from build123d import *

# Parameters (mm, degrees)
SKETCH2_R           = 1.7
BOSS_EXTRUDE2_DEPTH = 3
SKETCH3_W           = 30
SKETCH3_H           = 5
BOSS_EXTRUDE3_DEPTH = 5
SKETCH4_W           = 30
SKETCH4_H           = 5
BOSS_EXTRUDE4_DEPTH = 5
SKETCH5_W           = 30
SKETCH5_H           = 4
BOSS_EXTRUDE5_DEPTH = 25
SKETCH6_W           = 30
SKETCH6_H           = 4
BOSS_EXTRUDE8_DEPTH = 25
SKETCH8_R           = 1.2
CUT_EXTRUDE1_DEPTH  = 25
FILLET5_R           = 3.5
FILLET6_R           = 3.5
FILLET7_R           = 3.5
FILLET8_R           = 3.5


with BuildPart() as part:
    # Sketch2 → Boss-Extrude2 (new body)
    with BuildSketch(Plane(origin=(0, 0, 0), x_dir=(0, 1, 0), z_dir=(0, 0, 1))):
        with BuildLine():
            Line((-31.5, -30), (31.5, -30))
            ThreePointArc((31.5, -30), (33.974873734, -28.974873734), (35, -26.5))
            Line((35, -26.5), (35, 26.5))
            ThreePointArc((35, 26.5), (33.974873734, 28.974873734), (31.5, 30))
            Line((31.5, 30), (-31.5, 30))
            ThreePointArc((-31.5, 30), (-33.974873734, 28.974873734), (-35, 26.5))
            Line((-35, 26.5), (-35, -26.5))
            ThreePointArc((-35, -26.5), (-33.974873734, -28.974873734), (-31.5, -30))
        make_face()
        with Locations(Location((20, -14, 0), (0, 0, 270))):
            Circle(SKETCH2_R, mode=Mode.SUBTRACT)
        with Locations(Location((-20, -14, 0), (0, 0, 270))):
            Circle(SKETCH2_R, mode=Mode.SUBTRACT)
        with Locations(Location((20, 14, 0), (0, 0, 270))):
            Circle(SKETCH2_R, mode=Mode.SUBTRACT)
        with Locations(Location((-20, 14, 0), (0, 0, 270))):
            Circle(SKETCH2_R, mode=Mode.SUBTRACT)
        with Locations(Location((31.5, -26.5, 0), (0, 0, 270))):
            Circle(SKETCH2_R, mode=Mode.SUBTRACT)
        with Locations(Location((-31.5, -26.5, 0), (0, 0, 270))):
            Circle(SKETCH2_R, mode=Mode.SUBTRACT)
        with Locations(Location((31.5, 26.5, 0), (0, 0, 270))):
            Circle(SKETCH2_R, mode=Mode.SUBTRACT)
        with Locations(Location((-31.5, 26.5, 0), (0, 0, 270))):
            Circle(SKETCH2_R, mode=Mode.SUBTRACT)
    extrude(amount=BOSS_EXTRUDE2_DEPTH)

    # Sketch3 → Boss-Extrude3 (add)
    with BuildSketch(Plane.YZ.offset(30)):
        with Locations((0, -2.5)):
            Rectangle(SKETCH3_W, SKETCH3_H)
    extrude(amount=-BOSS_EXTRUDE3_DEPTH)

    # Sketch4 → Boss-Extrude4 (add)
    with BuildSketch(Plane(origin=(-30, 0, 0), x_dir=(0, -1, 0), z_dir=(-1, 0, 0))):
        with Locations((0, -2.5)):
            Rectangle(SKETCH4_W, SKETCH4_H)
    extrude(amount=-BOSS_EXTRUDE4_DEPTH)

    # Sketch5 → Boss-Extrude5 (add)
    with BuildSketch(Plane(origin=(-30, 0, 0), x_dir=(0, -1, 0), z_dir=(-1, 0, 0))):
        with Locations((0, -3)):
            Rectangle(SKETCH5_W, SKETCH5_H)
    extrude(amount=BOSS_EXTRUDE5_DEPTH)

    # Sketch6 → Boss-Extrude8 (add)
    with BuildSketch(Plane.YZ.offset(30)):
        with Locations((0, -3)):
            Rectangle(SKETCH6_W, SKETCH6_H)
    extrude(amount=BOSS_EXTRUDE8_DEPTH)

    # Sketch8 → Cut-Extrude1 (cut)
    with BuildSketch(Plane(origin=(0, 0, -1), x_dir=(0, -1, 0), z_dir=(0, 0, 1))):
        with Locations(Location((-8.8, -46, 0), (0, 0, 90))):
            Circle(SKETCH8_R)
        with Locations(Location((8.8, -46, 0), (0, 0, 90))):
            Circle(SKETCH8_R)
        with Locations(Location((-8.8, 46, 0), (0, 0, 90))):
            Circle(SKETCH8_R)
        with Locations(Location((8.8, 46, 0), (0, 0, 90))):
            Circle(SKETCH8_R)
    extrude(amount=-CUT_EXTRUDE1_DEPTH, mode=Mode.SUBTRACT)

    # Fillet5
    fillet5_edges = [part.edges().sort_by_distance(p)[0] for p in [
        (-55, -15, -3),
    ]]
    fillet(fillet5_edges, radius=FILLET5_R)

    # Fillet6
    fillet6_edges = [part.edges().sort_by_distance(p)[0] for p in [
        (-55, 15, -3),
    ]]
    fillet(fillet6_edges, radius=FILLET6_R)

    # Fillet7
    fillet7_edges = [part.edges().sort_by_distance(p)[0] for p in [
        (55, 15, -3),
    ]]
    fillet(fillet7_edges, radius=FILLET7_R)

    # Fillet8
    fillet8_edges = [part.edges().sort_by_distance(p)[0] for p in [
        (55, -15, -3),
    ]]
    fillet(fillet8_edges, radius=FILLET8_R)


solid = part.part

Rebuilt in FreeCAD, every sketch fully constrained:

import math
import FreeCAD as App
import Part
import Sketcher
from FreeCAD import Vector
Q = App.Units.Quantity


def edges_at(feature, points):
    """Names of the edges that pass closest to the given points."""
    edges = feature.Shape.Edges
    near = lambda p: min(range(len(edges)), key=lambda i: edges[i].distToShape(Part.Vertex(*p))[0])
    return sorted({f"Edge{near(p) + 1}" for p in points})

doc = App.newDocument("Part")
body = doc.addObject("PartDesign::Body", "Body")

sketch1 = doc.addObject("Sketcher::SketchObject", "Sketch")
body.addObject(sketch1)
sketch1.AttachmentSupport = (doc.XY_Plane, [""])
sketch1.MapMode = "FlatFace"
sketch1.addGeometry([
    Part.LineSegment(Vector(30, -31.5, 0), Vector(30, 31.5, 0)),
    Part.ArcOfCircle(Part.Circle(Vector(26.5, 31.5, 0), Vector(0, 0, 1), 3.5), math.radians(0), math.radians(90)),
    Part.LineSegment(Vector(26.5, 35, 0), Vector(-26.5, 35, 0)),
    Part.ArcOfCircle(Part.Circle(Vector(-26.5, 31.5, 0), Vector(0, 0, 1), 3.5), math.radians(90), math.radians(180)),
    Part.LineSegment(Vector(-30, 31.5, 0), Vector(-30, -31.5, 0)),
    Part.ArcOfCircle(Part.Circle(Vector(-26.5, -31.5, 0), Vector(0, 0, 1), 3.5), math.radians(-180), math.radians(-90)),
    Part.LineSegment(Vector(-26.5, -35, 0), Vector(26.5, -35, 0)),
    Part.ArcOfCircle(Part.Circle(Vector(26.5, -31.5, 0), Vector(0, 0, 1), 3.5), math.radians(-90), math.radians(0)),
    Part.Circle(Vector(26.5, -31.5, 0), Vector(0, 0, 1), 1.7),
    Part.Circle(Vector(14, -20, 0), Vector(0, 0, 1), 1.7),
    Part.Circle(Vector(26.5, 31.5, 0), Vector(0, 0, 1), 1.7),
    Part.Circle(Vector(14, 20, 0), Vector(0, 0, 1), 1.7),
    Part.Circle(Vector(-14, -20, 0), Vector(0, 0, 1), 1.7),
    Part.Circle(Vector(-26.5, -31.5, 0), Vector(0, 0, 1), 1.7),
    Part.Circle(Vector(-14, 20, 0), Vector(0, 0, 1), 1.7),
    Part.Circle(Vector(-26.5, 31.5, 0), Vector(0, 0, 1), 1.7),
], False)
sketch1.addConstraint([
    Sketcher.Constraint("Tangent", 0, 2, 1, 1),
    Sketcher.Constraint("Tangent", 1, 2, 2, 1),
    Sketcher.Constraint("Tangent", 2, 2, 3, 1),
    Sketcher.Constraint("Tangent", 3, 2, 4, 1),
    Sketcher.Constraint("Tangent", 4, 2, 5, 1),
    Sketcher.Constraint("Tangent", 5, 2, 6, 1),
    Sketcher.Constraint("Tangent", 6, 2, 7, 1),
    Sketcher.Constraint("Tangent", 7, 2, 0, 1),
    Sketcher.Constraint("Vertical", 0),
    Sketcher.Constraint("Horizontal", 2),
    Sketcher.Constraint("Vertical", 4),
    Sketcher.Constraint("Horizontal", 6),
    Sketcher.Constraint("Coincident", 8, 3, 7, 3),
    Sketcher.Constraint("Coincident", 10, 3, 1, 3),
    Sketcher.Constraint("Coincident", 13, 3, 5, 3),
    Sketcher.Constraint("Coincident", 15, 3, 3, 3),
    Sketcher.Constraint("Equal", 1, 3),
    Sketcher.Constraint("Equal", 3, 5),
    Sketcher.Constraint("Equal", 5, 7),
    Sketcher.Constraint("Equal", 8, 9),
    Sketcher.Constraint("Equal", 9, 10),
    Sketcher.Constraint("Equal", 10, 11),
    Sketcher.Constraint("Equal", 11, 12),
    Sketcher.Constraint("Equal", 12, 13),
    Sketcher.Constraint("Equal", 13, 14),
    Sketcher.Constraint("Equal", 14, 15),
    Sketcher.Constraint("Symmetric", 1, 3, 5, 3, -1, 1),
    Sketcher.Constraint("Symmetric", 11, 3, 12, 3, -1, 1),
    Sketcher.Constraint("Symmetric", 9, 3, 14, 3, -1, 1),
    Sketcher.Constraint("Symmetric", 9, 3, 12, 3, -2),
    Sketcher.Constraint("Diameter", 8, Q("3.4 mm")),
    Sketcher.Constraint("Radius", 1, Q("3.5 mm")),
    Sketcher.Constraint("DistanceX", 2, 2, 2, 1, Q("53 mm")),
    Sketcher.Constraint("DistanceY", 0, 1, 0, 2, Q("63 mm")),
    Sketcher.Constraint("DistanceX", -1, 1, 9, 3, Q("14 mm")),
    Sketcher.Constraint("DistanceY", 9, 3, -1, 1, Q("20 mm")),
])
pad1 = doc.addObject("PartDesign::Pad", "Pad")
body.addObject(pad1)
pad1.Profile = sketch1
pad1.Length = 3

sketch2 = doc.addObject("Sketcher::SketchObject", "Sketch001")
body.addObject(sketch2)
sketch2.AttachmentSupport = (doc.YZ_Plane, [""])
sketch2.MapMode = "FlatFace"
sketch2.AttachmentOffset = App.Placement(Vector(0, 0, 30), App.Rotation())
sketch2.addGeometry([
    Part.LineSegment(Vector(-15, 0, 0), Vector(-15, -5, 0)),
    Part.LineSegment(Vector(-15, -5, 0), Vector(15, -5, 0)),
    Part.LineSegment(Vector(15, -5, 0), Vector(15, 0, 0)),
    Part.LineSegment(Vector(15, 0, 0), Vector(-15, 0, 0)),
], False)
sketch2.addConstraint([
    Sketcher.Constraint("Coincident", 0, 2, 1, 1),
    Sketcher.Constraint("Coincident", 1, 2, 2, 1),
    Sketcher.Constraint("Coincident", 2, 2, 3, 1),
    Sketcher.Constraint("Coincident", 3, 2, 0, 1),
    Sketcher.Constraint("Vertical", 0),
    Sketcher.Constraint("Horizontal", 1),
    Sketcher.Constraint("Vertical", 2),
    Sketcher.Constraint("Horizontal", 3),
    Sketcher.Constraint("Symmetric", 2, 2, 3, 2, -1, 1),
    Sketcher.Constraint("DistanceX", 1, 1, 1, 2, Q("30 mm")),
    Sketcher.Constraint("DistanceY", 0, 2, 0, 1, Q("5 mm")),
])
pad2 = doc.addObject("PartDesign::Pad", "Pad001")
body.addObject(pad2)
pad2.Profile = sketch2
pad2.Length = 5
pad2.Reversed = True

sketch3 = doc.addObject("Sketcher::SketchObject", "Sketch002")
body.addObject(sketch3)
sketch3.AttachmentSupport = (doc.YZ_Plane, [""])
sketch3.MapMode = "FlatFace"
sketch3.AttachmentOffset = App.Placement(Vector(0, 0, -30), App.Rotation())
sketch3.addGeometry([
    Part.LineSegment(Vector(15, 0, 0), Vector(15, -5, 0)),
    Part.LineSegment(Vector(15, -5, 0), Vector(-15, -5, 0)),
    Part.LineSegment(Vector(-15, -5, 0), Vector(-15, 0, 0)),
    Part.LineSegment(Vector(-15, 0, 0), Vector(15, 0, 0)),
], False)
sketch3.addConstraint([
    Sketcher.Constraint("Coincident", 0, 2, 1, 1),
    Sketcher.Constraint("Coincident", 1, 2, 2, 1),
    Sketcher.Constraint("Coincident", 2, 2, 3, 1),
    Sketcher.Constraint("Coincident", 3, 2, 0, 1),
    Sketcher.Constraint("Vertical", 0),
    Sketcher.Constraint("Horizontal", 1),
    Sketcher.Constraint("Vertical", 2),
    Sketcher.Constraint("Horizontal", 3),
    Sketcher.Constraint("Symmetric", 2, 2, 3, 2, -1, 1),
    Sketcher.Constraint("DistanceX", 1, 2, 1, 1, Q("30 mm")),
    Sketcher.Constraint("DistanceY", 0, 2, 0, 1, Q("5 mm")),
])
pad3 = doc.addObject("PartDesign::Pad", "Pad002")
body.addObject(pad3)
pad3.Profile = sketch3
pad3.Length = 5

sketch4 = doc.addObject("Sketcher::SketchObject", "Sketch003")
body.addObject(sketch4)
sketch4.AttachmentSupport = (doc.YZ_Plane, [""])
sketch4.MapMode = "FlatFace"
sketch4.AttachmentOffset = App.Placement(Vector(0, 0, -30), App.Rotation())
sketch4.addGeometry([
    Part.LineSegment(Vector(15, -1, 0), Vector(15, -5, 0)),
    Part.LineSegment(Vector(15, -5, 0), Vector(-15, -5, 0)),
    Part.LineSegment(Vector(-15, -5, 0), Vector(-15, -1, 0)),
    Part.LineSegment(Vector(-15, -1, 0), Vector(15, -1, 0)),
], False)
sketch4.addConstraint([
    Sketcher.Constraint("Coincident", 0, 2, 1, 1),
    Sketcher.Constraint("Coincident", 1, 2, 2, 1),
    Sketcher.Constraint("Coincident", 2, 2, 3, 1),
    Sketcher.Constraint("Coincident", 3, 2, 0, 1),
    Sketcher.Constraint("Vertical", 0),
    Sketcher.Constraint("Horizontal", 1),
    Sketcher.Constraint("Vertical", 2),
    Sketcher.Constraint("Horizontal", 3),
    Sketcher.Constraint("DistanceX", 1, 2, 1, 1, Q("30 mm")),
    Sketcher.Constraint("DistanceY", 0, 2, 0, 1, Q("4 mm")),
    Sketcher.Constraint("DistanceX", -1, 1, 0, 2, Q("15 mm")),
    Sketcher.Constraint("DistanceY", 0, 2, -1, 1, Q("5 mm")),
])
pad4 = doc.addObject("PartDesign::Pad", "Pad003")
body.addObject(pad4)
pad4.Profile = sketch4
pad4.Length = 25
pad4.Reversed = True

sketch5 = doc.addObject("Sketcher::SketchObject", "Sketch004")
body.addObject(sketch5)
sketch5.AttachmentSupport = (doc.YZ_Plane, [""])
sketch5.MapMode = "FlatFace"
sketch5.AttachmentOffset = App.Placement(Vector(0, 0, 30), App.Rotation())
sketch5.addGeometry([
    Part.LineSegment(Vector(-15, -1, 0), Vector(-15, -5, 0)),
    Part.LineSegment(Vector(-15, -5, 0), Vector(15, -5, 0)),
    Part.LineSegment(Vector(15, -5, 0), Vector(15, -1, 0)),
    Part.LineSegment(Vector(15, -1, 0), Vector(-15, -1, 0)),
], False)
sketch5.addConstraint([
    Sketcher.Constraint("Coincident", 0, 2, 1, 1),
    Sketcher.Constraint("Coincident", 1, 2, 2, 1),
    Sketcher.Constraint("Coincident", 2, 2, 3, 1),
    Sketcher.Constraint("Coincident", 3, 2, 0, 1),
    Sketcher.Constraint("Vertical", 0),
    Sketcher.Constraint("Horizontal", 1),
    Sketcher.Constraint("Vertical", 2),
    Sketcher.Constraint("Horizontal", 3),
    Sketcher.Constraint("DistanceX", 1, 1, 1, 2, Q("30 mm")),
    Sketcher.Constraint("DistanceY", 0, 2, 0, 1, Q("4 mm")),
    Sketcher.Constraint("DistanceX", 0, 2, -1, 1, Q("15 mm")),
    Sketcher.Constraint("DistanceY", 0, 2, -1, 1, Q("5 mm")),
])
pad5 = doc.addObject("PartDesign::Pad", "Pad004")
body.addObject(pad5)
pad5.Profile = sketch5
pad5.Length = 25

sketch6 = doc.addObject("Sketcher::SketchObject", "Sketch005")
body.addObject(sketch6)
sketch6.AttachmentSupport = (doc.XY_Plane, [""])
sketch6.MapMode = "FlatFace"
sketch6.AttachmentOffset = App.Placement(Vector(0, 0, -1), App.Rotation())
sketch6.addGeometry([
    Part.Circle(Vector(-46, 8.8, 0), Vector(0, 0, 1), 1.2),
    Part.Circle(Vector(-46, -8.8, 0), Vector(0, 0, 1), 1.2),
    Part.Circle(Vector(46, 8.8, 0), Vector(0, 0, 1), 1.2),
    Part.Circle(Vector(46, -8.8, 0), Vector(0, 0, 1), 1.2),
], False)
sketch6.addConstraint([
    Sketcher.Constraint("Equal", 0, 1),
    Sketcher.Constraint("Equal", 1, 2),
    Sketcher.Constraint("Equal", 2, 3),
    Sketcher.Constraint("Symmetric", 1, 3, 2, 3, -1, 1),
    Sketcher.Constraint("Symmetric", 0, 3, 3, 3, -1, 1),
    Sketcher.Constraint("Symmetric", 0, 3, 2, 3, -2),
    Sketcher.Constraint("Diameter", 0, Q("2.4 mm")),
    Sketcher.Constraint("DistanceX", 0, 3, -1, 1, Q("46 mm")),
    Sketcher.Constraint("DistanceY", -1, 1, 0, 3, Q("8.8 mm")),
])
pocket1 = doc.addObject("PartDesign::Pocket", "Pocket")
body.addObject(pocket1)
pocket1.Profile = sketch6
pocket1.Length = 25
doc.recompute()

fillet = doc.addObject("PartDesign::Fillet", "Fillet")
body.addObject(fillet)
fillet.Base = (pocket1, edges_at(pocket1, [(-55, -15, -3)]))
fillet.Radius = 3.5
doc.recompute()

fillet2 = doc.addObject("PartDesign::Fillet", "Fillet001")
body.addObject(fillet2)
fillet2.Base = (fillet, edges_at(fillet, [(-55, 15, -3)]))
fillet2.Radius = 3.5
doc.recompute()

fillet3 = doc.addObject("PartDesign::Fillet", "Fillet002")
body.addObject(fillet3)
fillet3.Base = (fillet2, edges_at(fillet2, [(55, 15, -3)]))
fillet3.Radius = 3.5
doc.recompute()

fillet4 = doc.addObject("PartDesign::Fillet", "Fillet003")
body.addObject(fillet4)
fillet4.Base = (fillet3, edges_at(fillet3, [(55, -15, -3)]))
fillet4.Radius = 3.5

doc.recompute()
